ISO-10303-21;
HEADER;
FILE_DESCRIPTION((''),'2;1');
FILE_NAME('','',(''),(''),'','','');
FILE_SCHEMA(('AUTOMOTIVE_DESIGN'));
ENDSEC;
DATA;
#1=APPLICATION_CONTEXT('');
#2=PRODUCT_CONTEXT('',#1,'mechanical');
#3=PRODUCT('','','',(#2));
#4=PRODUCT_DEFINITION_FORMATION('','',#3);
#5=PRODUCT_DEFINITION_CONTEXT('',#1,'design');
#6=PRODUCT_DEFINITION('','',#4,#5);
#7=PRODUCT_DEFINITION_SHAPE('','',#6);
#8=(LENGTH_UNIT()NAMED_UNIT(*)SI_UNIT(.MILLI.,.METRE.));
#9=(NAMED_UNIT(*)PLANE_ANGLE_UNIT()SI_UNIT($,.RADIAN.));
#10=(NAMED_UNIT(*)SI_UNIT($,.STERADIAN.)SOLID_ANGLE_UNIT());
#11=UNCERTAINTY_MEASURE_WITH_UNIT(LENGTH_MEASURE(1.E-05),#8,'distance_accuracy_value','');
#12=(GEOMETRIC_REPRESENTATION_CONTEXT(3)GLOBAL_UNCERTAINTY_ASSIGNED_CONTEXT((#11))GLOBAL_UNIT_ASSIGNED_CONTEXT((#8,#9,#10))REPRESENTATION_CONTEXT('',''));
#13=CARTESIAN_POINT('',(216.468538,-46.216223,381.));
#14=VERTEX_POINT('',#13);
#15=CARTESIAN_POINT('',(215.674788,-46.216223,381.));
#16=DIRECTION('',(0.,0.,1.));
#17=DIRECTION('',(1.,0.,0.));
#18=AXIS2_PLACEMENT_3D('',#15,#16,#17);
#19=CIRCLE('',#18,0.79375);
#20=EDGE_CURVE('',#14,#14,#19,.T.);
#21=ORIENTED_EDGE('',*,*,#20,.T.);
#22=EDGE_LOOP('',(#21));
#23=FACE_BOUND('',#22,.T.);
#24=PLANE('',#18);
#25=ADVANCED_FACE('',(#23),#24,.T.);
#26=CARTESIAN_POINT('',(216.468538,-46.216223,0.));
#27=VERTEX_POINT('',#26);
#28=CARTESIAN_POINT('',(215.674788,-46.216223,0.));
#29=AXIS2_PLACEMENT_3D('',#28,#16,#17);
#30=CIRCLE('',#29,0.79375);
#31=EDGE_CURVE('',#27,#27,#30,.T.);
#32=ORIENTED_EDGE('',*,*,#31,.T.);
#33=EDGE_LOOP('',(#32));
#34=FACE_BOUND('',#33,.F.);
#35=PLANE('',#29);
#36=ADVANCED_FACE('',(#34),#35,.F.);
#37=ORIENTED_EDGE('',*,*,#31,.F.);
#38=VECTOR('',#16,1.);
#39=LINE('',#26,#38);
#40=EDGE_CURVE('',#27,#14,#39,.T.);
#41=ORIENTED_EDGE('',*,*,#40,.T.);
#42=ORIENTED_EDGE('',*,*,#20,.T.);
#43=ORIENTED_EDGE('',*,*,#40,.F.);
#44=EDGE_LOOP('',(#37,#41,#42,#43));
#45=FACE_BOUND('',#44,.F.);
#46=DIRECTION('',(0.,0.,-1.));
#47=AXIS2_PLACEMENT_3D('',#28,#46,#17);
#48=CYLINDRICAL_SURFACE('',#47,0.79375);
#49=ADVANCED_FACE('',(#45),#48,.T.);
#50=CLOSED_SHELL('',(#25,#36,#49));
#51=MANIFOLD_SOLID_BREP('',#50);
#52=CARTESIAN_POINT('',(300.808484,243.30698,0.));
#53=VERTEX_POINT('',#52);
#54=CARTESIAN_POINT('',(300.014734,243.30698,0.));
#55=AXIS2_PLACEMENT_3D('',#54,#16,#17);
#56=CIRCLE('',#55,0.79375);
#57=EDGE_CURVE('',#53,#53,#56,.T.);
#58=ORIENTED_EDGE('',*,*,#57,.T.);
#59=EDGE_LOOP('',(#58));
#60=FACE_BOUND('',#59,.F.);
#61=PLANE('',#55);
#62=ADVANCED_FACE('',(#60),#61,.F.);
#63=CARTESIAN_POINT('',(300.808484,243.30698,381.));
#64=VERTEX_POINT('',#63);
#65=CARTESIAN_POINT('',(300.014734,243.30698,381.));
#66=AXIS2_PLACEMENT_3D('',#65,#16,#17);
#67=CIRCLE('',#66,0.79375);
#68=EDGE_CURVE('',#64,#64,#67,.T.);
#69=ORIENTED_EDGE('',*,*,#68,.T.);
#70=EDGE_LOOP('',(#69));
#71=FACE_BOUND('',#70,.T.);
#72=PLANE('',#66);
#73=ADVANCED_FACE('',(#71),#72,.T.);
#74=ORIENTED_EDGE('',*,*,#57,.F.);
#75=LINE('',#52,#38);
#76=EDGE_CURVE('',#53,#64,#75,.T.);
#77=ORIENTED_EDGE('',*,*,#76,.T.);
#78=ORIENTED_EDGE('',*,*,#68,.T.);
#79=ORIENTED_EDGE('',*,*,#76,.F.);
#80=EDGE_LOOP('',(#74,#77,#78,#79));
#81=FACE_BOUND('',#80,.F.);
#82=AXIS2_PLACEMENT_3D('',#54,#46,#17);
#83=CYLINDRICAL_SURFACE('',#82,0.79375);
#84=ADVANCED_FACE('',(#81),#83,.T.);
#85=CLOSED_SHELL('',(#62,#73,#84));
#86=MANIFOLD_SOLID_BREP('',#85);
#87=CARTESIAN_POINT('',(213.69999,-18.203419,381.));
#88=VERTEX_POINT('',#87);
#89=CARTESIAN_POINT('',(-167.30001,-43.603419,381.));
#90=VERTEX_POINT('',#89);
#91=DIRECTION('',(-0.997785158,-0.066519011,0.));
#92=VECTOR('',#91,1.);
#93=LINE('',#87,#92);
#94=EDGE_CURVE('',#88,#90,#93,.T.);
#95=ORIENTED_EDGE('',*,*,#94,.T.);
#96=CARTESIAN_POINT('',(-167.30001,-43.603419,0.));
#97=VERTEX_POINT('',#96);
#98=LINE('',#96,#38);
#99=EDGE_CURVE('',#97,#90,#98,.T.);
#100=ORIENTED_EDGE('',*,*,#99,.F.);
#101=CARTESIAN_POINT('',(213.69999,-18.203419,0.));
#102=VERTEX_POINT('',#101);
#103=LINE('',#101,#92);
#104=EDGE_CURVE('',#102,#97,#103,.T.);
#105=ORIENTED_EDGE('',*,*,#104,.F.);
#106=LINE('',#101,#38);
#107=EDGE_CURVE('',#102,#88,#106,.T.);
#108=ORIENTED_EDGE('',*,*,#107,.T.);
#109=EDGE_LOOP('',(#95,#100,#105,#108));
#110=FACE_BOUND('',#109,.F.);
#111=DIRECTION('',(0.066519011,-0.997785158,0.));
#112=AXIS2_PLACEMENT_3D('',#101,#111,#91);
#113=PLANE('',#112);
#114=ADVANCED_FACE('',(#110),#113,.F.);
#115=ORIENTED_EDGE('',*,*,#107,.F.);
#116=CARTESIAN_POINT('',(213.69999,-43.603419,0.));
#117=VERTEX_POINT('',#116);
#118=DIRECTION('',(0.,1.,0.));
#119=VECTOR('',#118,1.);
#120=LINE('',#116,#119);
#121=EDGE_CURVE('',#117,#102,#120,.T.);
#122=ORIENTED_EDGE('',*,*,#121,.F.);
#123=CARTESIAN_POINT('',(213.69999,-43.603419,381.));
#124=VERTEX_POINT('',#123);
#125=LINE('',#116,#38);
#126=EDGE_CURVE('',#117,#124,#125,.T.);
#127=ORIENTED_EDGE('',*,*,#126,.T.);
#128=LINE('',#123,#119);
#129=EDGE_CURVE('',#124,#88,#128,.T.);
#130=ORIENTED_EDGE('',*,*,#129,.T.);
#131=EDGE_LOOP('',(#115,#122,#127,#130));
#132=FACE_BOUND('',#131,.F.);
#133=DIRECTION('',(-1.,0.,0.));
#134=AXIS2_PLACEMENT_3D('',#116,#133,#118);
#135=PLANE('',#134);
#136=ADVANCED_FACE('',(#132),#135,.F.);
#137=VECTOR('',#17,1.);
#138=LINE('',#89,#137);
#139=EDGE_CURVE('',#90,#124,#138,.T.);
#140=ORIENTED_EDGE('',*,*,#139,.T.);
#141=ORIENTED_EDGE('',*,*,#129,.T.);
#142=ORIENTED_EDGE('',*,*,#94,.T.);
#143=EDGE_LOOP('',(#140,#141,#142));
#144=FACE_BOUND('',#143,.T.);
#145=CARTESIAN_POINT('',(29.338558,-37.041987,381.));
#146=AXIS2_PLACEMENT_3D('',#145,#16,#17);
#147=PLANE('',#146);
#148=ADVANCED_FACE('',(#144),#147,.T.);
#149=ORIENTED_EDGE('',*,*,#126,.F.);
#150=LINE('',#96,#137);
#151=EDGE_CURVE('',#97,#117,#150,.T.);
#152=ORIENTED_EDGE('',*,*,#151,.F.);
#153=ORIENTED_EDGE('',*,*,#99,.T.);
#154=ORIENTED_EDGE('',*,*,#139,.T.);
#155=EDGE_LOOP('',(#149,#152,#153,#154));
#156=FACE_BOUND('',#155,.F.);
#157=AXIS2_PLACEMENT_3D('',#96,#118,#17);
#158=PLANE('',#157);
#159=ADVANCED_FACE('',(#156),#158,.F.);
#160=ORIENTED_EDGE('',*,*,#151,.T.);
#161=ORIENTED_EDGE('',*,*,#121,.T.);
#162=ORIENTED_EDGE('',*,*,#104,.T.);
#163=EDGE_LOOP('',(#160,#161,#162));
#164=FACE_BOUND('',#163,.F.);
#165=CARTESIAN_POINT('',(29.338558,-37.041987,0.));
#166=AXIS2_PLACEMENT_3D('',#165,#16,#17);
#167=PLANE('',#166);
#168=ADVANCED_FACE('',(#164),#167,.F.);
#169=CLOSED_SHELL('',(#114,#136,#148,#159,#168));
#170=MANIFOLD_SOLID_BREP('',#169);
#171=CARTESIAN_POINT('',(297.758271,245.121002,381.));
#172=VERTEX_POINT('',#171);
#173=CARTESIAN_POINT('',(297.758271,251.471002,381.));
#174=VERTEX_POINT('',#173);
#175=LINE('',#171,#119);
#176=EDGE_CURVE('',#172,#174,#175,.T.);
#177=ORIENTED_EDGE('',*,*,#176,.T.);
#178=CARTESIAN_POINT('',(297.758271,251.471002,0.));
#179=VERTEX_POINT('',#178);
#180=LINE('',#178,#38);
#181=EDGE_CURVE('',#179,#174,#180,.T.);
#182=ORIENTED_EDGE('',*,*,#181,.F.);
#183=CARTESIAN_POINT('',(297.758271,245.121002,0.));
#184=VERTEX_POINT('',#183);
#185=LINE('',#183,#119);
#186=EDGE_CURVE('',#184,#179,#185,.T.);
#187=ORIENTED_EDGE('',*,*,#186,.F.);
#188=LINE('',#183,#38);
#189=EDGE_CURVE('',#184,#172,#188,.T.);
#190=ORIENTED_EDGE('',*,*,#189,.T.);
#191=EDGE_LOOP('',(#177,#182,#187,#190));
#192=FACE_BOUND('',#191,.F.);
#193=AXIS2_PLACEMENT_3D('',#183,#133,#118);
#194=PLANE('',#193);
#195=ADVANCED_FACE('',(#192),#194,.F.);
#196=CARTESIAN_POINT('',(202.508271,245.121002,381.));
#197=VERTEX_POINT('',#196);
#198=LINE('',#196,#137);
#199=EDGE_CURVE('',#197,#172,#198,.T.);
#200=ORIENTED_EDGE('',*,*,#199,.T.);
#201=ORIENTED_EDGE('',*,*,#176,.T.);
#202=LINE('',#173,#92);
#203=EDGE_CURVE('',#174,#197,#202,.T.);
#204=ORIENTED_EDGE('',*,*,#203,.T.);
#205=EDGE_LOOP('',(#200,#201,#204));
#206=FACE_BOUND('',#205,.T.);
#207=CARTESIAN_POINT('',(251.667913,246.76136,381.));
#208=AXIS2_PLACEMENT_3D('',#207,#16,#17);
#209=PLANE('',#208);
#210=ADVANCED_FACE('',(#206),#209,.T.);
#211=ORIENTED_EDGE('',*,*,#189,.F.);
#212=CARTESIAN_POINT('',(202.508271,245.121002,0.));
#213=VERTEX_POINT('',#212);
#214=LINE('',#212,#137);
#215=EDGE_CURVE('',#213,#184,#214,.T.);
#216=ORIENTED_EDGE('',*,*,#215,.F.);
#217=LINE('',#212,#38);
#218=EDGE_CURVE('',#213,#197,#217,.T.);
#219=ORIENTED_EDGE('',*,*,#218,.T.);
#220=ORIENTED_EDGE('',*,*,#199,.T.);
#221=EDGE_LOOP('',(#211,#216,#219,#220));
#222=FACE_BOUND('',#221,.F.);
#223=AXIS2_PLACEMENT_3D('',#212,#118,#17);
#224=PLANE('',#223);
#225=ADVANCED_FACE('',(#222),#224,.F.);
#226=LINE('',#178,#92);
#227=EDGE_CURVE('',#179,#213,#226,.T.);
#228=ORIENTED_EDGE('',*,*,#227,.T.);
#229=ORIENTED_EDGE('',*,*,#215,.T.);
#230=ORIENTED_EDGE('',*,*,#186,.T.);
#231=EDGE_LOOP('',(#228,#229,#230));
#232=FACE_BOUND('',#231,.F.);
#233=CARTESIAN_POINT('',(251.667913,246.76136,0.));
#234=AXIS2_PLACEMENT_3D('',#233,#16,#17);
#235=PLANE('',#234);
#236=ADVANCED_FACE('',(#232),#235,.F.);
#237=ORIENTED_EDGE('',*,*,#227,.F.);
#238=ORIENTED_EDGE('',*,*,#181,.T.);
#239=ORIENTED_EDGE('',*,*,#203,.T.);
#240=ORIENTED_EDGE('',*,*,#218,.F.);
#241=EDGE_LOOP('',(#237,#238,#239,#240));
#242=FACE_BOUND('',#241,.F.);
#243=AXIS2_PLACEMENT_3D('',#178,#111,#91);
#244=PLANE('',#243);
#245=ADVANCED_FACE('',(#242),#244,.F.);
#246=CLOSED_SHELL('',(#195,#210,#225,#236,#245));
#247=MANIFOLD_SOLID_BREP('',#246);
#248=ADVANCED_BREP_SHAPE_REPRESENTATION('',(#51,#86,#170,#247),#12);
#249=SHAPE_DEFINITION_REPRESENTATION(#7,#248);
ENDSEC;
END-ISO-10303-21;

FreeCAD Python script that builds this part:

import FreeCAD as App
import Part
import Sketcher
Q = App.Units.Quantity


def add_polygon(sketch, points):
    """Adds a closed chain of lines whose ends are joined by coincident constraints."""
    first, n = sketch.GeometryCount, len(points)
    for a, b in zip(points, points[1:] + points[:1]):
        sketch.addGeometry(Part.LineSegment(App.Vector(*a, 0), App.Vector(*b, 0)), False)
    for i in range(n):
        sketch.addConstraint(Sketcher.Constraint("Coincident", first + i, 2, first + (i + 1) % n, 1))

doc = App.newDocument("Part")
body = doc.addObject("PartDesign::Body", "Body")
body.AllowCompound = True

# Sketch on XY plane
sketch1 = body.newObject("Sketcher::SketchObject", "Sketch")
sketch1.AttachmentSupport = (doc.getObject("XY_Plane"), [""])
sketch1.MapMode = "FlatFace"
add_polygon(sketch1, [(213.7, -18.2), (-167.3, -43.6), (213.7, -43.6)])  # lines 0-2
add_polygon(sketch1, [(297.8, 251.5), (202.5, 245.1), (297.8, 245.1)])  # lines 3-5
sketch1.addGeometry(Part.Circle(App.Vector(215.7, -46.2, 0), App.Vector(0, 0, 1), 0.8), False)  # 6
sketch1.addGeometry(Part.Circle(App.Vector(300, 243.3, 0), App.Vector(0, 0, 1), 0.8), False)  # 7
sketch1.addConstraint([
    Sketcher.Constraint("Horizontal", 1),
    Sketcher.Constraint("Vertical", 2),
    Sketcher.Constraint("Horizontal", 4),
    Sketcher.Constraint("Vertical", 5),
    Sketcher.Constraint("Equal", 6, 7),
    Sketcher.Constraint("Parallel", 0, 3),
    Sketcher.Constraint("DistanceX", 1, 1, 1, 2, Q("15 in")),
    Sketcher.Constraint("DistanceY", 2, 1, 2, 2, Q("1 in")),
    Sketcher.Constraint("Diameter", 6, Q("0.0625 in")),
    Sketcher.Constraint("DistanceX", 4, 1, 4, 2, Q("3.75 in")),
    Sketcher.Constraint("DistanceY", -1, 1, 3, 2, 245.121002),
    Sketcher.Constraint("DistanceY", 0, 2, 7, 3, 286.910399),
    Sketcher.Constraint("DistanceX", -1, 1, 6, 3, 215.674788),
    Sketcher.Constraint("DistanceY", -1, 1, 7, 3, 243.30698),
    Sketcher.Constraint("DistanceX", 0, 2, -1, 1, 167.30001),
    Sketcher.Constraint("DistanceX", -1, 1, 3, 2, 202.508271),
    Sketcher.Constraint("DistanceY", 6, 3, -1, 1, 46.216223),
    Sketcher.Constraint("DistanceX", -1, 1, 7, 3, 300.014734),
])
pad1 = body.newObject("PartDesign::Pad", "Pad")
pad1.Profile = sketch1
pad1.Length = Q("15 in")

doc.recompute()
